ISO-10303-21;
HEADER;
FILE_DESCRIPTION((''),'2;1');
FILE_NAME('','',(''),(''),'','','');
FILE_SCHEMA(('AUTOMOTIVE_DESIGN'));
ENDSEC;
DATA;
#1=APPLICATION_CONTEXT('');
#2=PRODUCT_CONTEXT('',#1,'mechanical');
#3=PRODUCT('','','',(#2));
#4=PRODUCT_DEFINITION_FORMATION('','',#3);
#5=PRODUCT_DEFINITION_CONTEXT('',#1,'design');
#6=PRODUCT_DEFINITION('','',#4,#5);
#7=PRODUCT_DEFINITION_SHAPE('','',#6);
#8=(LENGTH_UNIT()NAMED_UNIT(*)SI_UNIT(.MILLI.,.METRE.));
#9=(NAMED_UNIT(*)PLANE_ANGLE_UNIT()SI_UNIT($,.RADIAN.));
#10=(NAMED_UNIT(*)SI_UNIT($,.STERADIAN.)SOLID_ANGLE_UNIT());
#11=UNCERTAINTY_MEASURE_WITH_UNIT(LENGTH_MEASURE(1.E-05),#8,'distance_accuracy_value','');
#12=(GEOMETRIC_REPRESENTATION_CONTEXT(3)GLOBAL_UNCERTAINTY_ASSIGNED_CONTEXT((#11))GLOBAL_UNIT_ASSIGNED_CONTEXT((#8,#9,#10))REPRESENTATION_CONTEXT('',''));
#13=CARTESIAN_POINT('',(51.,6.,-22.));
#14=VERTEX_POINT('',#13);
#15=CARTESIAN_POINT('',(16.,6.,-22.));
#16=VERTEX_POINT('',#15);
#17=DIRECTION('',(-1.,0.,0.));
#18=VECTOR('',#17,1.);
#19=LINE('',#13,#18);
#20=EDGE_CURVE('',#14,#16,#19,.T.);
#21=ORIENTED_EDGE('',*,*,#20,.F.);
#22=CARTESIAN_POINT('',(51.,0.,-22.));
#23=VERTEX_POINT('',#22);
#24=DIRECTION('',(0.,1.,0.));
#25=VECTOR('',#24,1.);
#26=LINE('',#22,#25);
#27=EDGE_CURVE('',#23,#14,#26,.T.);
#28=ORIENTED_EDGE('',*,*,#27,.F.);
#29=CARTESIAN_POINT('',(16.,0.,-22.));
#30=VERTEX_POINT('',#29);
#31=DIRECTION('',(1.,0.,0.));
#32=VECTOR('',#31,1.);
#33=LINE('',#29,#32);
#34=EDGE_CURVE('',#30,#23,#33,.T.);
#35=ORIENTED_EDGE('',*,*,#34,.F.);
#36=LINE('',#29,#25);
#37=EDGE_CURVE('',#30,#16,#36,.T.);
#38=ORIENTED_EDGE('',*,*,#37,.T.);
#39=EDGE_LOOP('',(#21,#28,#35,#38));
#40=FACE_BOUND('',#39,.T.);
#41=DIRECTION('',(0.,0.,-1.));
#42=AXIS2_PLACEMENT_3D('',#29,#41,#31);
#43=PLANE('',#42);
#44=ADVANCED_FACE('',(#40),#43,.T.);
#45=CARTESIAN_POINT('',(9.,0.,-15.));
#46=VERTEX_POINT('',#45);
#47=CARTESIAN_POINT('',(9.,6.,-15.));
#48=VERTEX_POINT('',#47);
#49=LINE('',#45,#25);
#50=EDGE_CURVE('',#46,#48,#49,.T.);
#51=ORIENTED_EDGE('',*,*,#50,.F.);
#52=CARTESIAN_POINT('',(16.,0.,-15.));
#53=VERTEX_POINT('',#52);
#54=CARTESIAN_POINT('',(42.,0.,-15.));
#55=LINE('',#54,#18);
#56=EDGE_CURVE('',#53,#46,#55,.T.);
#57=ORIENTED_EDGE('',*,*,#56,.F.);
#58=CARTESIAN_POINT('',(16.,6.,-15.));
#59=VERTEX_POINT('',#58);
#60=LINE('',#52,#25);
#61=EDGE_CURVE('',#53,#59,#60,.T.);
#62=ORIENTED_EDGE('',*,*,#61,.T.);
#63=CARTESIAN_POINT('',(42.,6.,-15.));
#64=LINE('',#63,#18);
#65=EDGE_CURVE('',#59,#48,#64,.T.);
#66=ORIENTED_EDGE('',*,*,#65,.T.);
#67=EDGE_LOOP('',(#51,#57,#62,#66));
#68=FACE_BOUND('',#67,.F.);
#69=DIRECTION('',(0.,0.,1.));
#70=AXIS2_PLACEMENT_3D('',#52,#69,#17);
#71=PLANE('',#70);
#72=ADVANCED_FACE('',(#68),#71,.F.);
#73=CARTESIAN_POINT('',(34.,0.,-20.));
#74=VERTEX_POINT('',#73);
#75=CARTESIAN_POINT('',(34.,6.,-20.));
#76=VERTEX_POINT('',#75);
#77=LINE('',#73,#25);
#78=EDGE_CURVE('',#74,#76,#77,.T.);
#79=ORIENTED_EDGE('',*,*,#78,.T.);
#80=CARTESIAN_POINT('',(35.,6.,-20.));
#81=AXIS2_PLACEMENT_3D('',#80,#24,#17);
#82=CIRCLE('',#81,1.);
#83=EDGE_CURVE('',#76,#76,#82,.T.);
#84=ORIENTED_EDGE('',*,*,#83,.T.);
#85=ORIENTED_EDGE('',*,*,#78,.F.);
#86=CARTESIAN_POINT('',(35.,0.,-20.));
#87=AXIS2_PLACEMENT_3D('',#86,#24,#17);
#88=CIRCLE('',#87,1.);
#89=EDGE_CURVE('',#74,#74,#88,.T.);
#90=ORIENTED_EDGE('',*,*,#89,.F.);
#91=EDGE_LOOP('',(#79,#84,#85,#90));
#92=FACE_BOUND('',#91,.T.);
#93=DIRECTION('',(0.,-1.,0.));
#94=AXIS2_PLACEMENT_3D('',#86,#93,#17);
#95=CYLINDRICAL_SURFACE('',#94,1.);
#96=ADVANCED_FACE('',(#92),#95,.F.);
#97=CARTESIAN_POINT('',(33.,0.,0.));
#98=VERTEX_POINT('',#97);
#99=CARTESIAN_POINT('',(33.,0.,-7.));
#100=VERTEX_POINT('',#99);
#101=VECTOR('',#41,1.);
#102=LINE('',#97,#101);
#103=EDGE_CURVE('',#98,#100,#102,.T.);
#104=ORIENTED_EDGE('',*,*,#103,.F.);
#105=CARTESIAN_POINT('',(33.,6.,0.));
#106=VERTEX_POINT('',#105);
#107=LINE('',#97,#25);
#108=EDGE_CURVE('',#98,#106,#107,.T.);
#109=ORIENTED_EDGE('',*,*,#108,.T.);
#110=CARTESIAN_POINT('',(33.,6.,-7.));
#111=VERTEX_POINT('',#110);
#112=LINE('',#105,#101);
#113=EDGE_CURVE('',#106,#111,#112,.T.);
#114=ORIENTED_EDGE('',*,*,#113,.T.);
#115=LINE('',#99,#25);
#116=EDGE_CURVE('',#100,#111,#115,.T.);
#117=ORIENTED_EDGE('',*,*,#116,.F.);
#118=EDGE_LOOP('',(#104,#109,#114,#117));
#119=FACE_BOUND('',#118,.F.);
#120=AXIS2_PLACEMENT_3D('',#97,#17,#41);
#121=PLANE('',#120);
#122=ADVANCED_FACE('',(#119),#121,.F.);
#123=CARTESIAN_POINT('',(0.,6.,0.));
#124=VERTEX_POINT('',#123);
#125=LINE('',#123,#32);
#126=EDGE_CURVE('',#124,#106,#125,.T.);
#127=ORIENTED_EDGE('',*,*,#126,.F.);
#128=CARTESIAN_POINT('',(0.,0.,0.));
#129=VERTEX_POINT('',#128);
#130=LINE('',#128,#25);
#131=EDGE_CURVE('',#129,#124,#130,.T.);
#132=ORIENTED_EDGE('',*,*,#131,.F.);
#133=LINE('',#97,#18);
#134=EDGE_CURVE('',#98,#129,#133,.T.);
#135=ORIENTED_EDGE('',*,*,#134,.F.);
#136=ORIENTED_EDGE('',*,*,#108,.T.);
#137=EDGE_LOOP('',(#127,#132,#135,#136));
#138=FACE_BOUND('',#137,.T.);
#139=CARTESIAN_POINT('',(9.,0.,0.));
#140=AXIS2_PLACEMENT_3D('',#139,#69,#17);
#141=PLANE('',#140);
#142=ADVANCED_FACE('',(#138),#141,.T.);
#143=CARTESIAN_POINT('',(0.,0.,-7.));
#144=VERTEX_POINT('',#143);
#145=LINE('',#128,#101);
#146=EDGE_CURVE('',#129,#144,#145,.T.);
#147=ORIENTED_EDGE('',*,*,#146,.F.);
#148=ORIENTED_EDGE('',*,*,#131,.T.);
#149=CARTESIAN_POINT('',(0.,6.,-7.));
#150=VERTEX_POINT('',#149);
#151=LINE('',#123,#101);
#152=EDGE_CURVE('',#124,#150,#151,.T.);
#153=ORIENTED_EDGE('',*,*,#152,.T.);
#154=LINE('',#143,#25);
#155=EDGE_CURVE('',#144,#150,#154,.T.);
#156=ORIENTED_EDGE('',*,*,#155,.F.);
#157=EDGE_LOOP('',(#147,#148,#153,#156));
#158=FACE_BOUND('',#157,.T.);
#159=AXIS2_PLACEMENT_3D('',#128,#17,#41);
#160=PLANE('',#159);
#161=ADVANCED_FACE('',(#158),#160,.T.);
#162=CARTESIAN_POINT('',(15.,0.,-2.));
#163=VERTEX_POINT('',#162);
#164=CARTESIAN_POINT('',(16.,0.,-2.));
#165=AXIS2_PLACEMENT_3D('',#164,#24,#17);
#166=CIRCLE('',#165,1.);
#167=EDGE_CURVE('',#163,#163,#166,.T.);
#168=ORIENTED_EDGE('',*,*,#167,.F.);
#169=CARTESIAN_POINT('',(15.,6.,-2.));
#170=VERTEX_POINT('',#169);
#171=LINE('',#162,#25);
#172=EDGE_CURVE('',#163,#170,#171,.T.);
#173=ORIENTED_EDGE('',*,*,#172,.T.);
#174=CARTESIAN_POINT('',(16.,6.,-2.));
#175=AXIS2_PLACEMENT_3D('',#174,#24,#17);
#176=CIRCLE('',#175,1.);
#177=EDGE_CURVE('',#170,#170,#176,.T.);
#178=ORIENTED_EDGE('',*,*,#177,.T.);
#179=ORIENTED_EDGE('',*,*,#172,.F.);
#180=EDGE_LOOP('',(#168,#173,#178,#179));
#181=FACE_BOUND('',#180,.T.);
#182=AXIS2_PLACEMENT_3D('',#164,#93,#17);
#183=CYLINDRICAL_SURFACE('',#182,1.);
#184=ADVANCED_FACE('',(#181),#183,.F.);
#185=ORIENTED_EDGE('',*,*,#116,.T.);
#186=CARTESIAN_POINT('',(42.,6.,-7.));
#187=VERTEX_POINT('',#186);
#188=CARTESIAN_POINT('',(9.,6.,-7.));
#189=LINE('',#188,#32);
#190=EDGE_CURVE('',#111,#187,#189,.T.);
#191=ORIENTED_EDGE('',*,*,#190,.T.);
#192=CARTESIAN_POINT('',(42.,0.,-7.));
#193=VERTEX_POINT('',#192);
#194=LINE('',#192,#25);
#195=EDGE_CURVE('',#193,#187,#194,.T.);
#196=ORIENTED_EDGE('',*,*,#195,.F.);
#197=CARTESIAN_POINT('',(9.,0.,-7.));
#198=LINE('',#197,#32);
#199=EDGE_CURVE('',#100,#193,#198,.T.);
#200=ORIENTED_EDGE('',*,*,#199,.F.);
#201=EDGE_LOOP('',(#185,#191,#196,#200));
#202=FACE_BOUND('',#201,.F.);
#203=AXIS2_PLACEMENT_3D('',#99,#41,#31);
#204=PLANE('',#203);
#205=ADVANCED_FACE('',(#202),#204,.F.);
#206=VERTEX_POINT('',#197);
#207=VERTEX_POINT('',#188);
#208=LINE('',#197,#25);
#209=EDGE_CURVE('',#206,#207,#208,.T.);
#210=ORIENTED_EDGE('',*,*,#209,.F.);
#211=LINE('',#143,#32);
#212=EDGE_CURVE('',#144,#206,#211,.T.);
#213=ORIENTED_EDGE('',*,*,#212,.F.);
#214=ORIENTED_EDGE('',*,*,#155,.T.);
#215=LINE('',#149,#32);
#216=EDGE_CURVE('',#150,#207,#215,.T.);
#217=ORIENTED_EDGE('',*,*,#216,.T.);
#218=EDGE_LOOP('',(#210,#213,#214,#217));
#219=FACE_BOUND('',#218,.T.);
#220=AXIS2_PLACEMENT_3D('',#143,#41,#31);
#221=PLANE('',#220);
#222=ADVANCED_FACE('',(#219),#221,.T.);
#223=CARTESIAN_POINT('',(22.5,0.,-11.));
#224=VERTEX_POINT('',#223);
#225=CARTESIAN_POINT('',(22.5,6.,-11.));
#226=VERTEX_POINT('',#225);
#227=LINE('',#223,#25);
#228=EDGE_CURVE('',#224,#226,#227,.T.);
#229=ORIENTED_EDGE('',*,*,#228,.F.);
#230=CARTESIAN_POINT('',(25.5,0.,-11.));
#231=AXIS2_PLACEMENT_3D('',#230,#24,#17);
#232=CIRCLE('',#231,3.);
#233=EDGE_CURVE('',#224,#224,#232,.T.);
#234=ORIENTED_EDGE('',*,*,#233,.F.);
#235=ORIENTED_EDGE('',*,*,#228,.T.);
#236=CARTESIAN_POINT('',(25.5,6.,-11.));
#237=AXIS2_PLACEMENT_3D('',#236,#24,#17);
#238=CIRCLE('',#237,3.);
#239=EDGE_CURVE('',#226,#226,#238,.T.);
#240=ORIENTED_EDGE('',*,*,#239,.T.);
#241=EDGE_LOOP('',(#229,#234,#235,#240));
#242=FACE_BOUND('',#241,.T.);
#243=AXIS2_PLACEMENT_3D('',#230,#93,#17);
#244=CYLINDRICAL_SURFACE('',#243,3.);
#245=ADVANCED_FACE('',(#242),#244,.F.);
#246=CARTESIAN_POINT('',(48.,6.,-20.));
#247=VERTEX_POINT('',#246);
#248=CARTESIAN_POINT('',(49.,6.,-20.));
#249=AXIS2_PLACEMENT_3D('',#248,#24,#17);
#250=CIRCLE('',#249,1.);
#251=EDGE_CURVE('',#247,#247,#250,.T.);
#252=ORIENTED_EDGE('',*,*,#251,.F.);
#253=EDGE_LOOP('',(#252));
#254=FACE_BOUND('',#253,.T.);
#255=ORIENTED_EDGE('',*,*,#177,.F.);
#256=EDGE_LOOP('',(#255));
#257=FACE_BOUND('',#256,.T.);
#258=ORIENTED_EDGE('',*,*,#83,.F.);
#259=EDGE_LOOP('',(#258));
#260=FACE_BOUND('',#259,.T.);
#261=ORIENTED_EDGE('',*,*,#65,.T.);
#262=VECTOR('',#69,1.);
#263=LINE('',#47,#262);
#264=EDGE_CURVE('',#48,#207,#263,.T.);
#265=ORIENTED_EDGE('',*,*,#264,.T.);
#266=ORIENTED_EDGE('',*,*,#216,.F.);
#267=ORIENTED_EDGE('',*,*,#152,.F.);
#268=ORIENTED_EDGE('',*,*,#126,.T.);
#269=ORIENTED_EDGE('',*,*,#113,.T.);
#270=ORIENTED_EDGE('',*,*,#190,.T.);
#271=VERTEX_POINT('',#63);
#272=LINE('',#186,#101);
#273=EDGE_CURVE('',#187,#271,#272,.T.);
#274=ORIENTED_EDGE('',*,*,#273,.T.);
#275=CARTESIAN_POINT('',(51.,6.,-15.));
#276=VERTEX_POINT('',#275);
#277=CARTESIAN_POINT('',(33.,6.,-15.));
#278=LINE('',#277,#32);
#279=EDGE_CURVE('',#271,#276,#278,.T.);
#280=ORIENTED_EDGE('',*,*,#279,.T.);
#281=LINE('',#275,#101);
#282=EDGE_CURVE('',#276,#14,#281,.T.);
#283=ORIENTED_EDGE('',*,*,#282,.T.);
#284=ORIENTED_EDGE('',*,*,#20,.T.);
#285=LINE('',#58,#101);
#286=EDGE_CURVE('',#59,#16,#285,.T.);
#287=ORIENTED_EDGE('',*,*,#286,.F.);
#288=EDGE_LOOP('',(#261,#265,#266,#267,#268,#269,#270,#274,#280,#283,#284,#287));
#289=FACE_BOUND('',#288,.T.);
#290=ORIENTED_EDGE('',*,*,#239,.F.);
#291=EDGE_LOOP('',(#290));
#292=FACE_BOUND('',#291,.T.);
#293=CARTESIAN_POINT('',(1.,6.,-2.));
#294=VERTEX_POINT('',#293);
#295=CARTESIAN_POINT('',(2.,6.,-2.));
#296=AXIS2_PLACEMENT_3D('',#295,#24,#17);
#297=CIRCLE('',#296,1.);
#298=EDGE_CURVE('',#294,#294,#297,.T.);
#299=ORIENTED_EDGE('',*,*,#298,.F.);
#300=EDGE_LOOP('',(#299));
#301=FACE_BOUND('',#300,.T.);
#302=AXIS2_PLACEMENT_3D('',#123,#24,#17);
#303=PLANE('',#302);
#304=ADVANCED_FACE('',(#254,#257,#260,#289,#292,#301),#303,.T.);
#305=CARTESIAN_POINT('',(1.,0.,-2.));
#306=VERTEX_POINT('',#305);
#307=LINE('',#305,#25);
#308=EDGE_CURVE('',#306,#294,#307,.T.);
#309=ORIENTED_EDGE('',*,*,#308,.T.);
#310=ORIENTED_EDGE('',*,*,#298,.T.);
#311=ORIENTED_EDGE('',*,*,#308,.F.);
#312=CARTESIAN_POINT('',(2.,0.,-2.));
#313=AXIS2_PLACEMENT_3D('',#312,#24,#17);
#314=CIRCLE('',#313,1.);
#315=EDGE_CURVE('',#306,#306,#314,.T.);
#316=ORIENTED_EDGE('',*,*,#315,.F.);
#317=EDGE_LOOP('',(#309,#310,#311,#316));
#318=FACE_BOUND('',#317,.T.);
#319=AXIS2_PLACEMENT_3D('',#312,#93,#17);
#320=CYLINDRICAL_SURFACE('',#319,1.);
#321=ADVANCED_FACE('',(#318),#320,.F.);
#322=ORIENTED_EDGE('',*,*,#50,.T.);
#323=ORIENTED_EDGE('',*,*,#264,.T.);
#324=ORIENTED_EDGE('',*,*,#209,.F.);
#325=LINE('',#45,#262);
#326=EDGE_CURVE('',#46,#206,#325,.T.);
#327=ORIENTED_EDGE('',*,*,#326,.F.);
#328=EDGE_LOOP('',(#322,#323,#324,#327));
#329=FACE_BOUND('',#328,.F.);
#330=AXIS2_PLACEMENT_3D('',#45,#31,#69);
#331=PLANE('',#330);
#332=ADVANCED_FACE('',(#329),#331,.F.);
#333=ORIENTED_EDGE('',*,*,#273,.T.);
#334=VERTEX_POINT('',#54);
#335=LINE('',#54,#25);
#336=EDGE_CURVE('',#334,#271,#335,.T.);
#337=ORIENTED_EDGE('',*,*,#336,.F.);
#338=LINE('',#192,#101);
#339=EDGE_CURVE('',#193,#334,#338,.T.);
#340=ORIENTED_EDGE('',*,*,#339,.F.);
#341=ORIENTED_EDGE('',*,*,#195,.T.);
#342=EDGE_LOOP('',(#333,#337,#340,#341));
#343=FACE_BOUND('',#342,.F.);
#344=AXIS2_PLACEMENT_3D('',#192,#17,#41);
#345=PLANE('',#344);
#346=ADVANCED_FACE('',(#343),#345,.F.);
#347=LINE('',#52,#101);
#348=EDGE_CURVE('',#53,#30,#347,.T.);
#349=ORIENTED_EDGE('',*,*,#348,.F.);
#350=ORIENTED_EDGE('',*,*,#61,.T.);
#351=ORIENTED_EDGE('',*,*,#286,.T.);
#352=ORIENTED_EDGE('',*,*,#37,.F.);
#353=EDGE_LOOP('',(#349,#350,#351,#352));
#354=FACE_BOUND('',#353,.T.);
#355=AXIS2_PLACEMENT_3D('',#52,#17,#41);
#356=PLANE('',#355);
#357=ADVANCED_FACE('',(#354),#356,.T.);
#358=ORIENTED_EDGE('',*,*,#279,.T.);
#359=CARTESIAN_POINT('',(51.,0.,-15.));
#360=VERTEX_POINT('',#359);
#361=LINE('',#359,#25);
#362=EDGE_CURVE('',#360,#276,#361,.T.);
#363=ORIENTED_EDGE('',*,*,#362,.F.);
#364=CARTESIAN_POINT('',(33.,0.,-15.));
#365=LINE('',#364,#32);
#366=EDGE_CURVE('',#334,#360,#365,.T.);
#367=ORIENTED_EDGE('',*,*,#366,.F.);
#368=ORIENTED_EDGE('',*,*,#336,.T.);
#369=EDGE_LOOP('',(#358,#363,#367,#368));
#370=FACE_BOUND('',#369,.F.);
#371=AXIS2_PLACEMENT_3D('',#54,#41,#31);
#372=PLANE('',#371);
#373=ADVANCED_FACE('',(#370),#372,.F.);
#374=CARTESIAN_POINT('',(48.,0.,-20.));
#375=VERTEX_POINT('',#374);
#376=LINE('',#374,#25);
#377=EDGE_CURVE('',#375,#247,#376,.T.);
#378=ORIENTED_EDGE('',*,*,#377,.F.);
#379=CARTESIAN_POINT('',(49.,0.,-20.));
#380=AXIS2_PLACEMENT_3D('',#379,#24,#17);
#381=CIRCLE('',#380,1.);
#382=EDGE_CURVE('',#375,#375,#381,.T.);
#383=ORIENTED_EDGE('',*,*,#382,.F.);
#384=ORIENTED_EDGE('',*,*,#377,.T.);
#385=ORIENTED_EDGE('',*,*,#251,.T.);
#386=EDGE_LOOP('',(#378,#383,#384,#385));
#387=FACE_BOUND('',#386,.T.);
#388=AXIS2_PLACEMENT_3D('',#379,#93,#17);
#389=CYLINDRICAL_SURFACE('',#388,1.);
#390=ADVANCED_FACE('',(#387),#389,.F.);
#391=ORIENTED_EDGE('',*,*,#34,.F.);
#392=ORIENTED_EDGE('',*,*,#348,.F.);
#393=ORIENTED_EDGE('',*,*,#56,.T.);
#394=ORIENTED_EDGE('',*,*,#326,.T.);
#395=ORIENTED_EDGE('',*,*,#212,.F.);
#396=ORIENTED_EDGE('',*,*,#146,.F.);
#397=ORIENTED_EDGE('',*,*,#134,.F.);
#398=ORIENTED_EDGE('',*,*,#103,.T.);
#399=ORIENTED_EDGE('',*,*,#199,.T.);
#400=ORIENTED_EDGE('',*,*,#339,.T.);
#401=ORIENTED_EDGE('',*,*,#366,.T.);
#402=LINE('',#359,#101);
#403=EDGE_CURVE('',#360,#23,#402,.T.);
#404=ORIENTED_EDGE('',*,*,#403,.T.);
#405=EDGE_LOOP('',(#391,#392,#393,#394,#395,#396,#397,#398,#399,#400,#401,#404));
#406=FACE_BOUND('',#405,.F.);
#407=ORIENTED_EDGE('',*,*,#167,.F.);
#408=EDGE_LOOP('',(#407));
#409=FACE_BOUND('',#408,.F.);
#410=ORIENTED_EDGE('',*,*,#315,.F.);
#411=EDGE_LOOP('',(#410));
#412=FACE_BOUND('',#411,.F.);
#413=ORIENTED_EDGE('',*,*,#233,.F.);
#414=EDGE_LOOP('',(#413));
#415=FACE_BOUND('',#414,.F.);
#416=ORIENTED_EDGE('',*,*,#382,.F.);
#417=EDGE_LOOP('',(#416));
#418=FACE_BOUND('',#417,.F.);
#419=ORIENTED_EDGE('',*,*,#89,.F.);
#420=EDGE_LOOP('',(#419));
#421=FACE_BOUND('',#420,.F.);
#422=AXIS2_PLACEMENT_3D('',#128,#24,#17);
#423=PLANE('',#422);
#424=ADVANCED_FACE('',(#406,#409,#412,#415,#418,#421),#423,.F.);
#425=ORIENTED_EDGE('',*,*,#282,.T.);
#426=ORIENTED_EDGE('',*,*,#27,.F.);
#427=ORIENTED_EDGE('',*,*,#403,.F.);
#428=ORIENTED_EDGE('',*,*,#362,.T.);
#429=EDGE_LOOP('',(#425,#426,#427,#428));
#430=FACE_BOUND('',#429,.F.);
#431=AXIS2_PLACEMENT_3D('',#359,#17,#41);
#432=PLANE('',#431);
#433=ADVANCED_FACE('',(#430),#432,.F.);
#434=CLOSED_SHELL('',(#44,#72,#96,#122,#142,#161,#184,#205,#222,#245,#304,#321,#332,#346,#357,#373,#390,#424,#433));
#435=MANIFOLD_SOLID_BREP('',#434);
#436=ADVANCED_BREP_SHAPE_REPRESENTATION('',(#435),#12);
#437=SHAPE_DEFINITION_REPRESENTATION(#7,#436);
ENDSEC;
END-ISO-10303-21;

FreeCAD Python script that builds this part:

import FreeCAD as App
import Part
import Sketcher
from FreeCAD import Vector
Q = App.Units.Quantity

doc = App.newDocument("Part")
params = doc.addObject("Spreadsheet::Sheet", "Params")
for row, (alias, value) in enumerate([
    ("sketch1_diameter", "2 mm"),
    ("sketch1_diameter2", "6 mm"),
    ("sketch1_width", "7 mm"),
    ("pad1_length", "6 mm"),
], start=1):
    params.set(f"A{row}", alias)
    params.set(f"B{row}", "=" + value)
    params.setAlias(f"B{row}", alias)

body = doc.addObject("PartDesign::Body", "Body")

sketch1 = body.newObject("Sketcher::SketchObject", "Sketch")
sketch1.AttachmentSupport = (doc.getObject("XZ_Plane"), [""])
sketch1.MapMode = "FlatFace"
sketch1.addGeometry([
    Part.LineSegment(Vector(9, -7, 0), Vector(0, -7, 0)),
    Part.LineSegment(Vector(0, -7, 0), Vector(0, 0, 0)),
    Part.LineSegment(Vector(0, 0, 0), Vector(33, 0, 0)),
    Part.LineSegment(Vector(33, 0, 0), Vector(33, -7, 0)),
    Part.LineSegment(Vector(33, -7, 0), Vector(42, -7, 0)),
    Part.LineSegment(Vector(42, -7, 0), Vector(42, -15, 0)),
    Part.LineSegment(Vector(42, -15, 0), Vector(51, -15, 0)),
    Part.LineSegment(Vector(51, -15, 0), Vector(51, -22, 0)),
    Part.LineSegment(Vector(51, -22, 0), Vector(16, -22, 0)),
    Part.LineSegment(Vector(16, -22, 0), Vector(16, -15, 0)),
    Part.LineSegment(Vector(16, -15, 0), Vector(9, -15, 0)),
    Part.LineSegment(Vector(9, -15, 0), Vector(9, -7, 0)),
    Part.Circle(Vector(16, -2, 0), Vector(0, 0, 1), 1),
    Part.Circle(Vector(2, -2, 0), Vector(0, 0, 1), 1),
    Part.Circle(Vector(25.5, -11, 0), Vector(0, 0, 1), 3),
    Part.Circle(Vector(49, -20, 0), Vector(0, 0, 1), 1),
    Part.Circle(Vector(35, -20, 0), Vector(0, 0, 1), 1),
], False)
sketch1.addConstraint([
    Sketcher.Constraint("Coincident", 0, 2, 1, 1),
    Sketcher.Constraint("Coincident", 1, 2, 2, 1),
    Sketcher.Constraint("Coincident", 2, 2, 3, 1),
    Sketcher.Constraint("Coincident", 3, 2, 4, 1),
    Sketcher.Constraint("Coincident", 4, 2, 5, 1),
    Sketcher.Constraint("Coincident", 5, 2, 6, 1),
    Sketcher.Constraint("Coincident", 6, 2, 7, 1),
    Sketcher.Constraint("Coincident", 7, 2, 8, 1),
    Sketcher.Constraint("Coincident", 8, 2, 9, 1),
    Sketcher.Constraint("Coincident", 9, 2, 10, 1),
    Sketcher.Constraint("Coincident", 10, 2, 11, 1),
    Sketcher.Constraint("Coincident", 11, 2, 0, 1),
    Sketcher.Constraint("Horizontal", 0),
    Sketcher.Constraint("Vertical", 1),
    Sketcher.Constraint("Horizontal", 2),
    Sketcher.Constraint("Vertical", 3),
    Sketcher.Constraint("Horizontal", 4),
    Sketcher.Constraint("Vertical", 5),
    Sketcher.Constraint("Horizontal", 6),
    Sketcher.Constraint("Vertical", 7),
    Sketcher.Constraint("Horizontal", 8),
    Sketcher.Constraint("Vertical", 9),
    Sketcher.Constraint("Horizontal", 10),
    Sketcher.Constraint("Vertical", 11),
    Sketcher.Constraint("Coincident", 1, 2, -1, 1),
    Sketcher.Constraint("Equal", 12, 13),
    Sketcher.Constraint("Equal", 13, 15),
    Sketcher.Constraint("Equal", 15, 16),
    Sketcher.Constraint("Horizontal", 12, 3, 13, 3),
    Sketcher.Constraint("Horizontal", 15, 3, 16, 3),
    Sketcher.Constraint("Horizontal", 0, 2, 3, 2),
    Sketcher.Constraint("Horizontal", 6, 2, 9, 2),
    Sketcher.Constraint("Vertical", 12, 3, 8, 2),
    Sketcher.Constraint("Equal", 0, 4),
    Sketcher.Constraint("Equal", 4, 6),
    Sketcher.Constraint("Equal", 10, 1),
    Sketcher.Constraint("Equal", 3, 7),
    Sketcher.Constraint("Diameter", 12, Q("2 mm")),
    Sketcher.Constraint("Diameter", 14, Q("6 mm")),
    Sketcher.Constraint("DistanceX", 10, 2, 10, 1, Q("7 mm")),
    Sketcher.Constraint("DistanceX", -1, 1, 12, 3, Q("16 mm")),
    Sketcher.Constraint("DistanceY", 12, 3, -1, 1, Q("2 mm")),
    Sketcher.Constraint("DistanceX", -1, 1, 13, 3, Q("2 mm")),
    Sketcher.Constraint("DistanceY", 7, 2, -1, 1, Q("22 mm")),
    Sketcher.Constraint("DistanceY", 15, 3, 12, 3, Q("18 mm")),
    Sketcher.Constraint("DistanceX", 12, 3, 16, 3, Q("19 mm")),
    Sketcher.Constraint("DistanceX", 2, 2, 16, 3, Q("2 mm")),
    Sketcher.Constraint("DistanceX", 2, 2, 15, 3, Q("16 mm")),
    Sketcher.Constraint("DistanceY", 14, 3, -1, 1, Q("11 mm")),
    Sketcher.Constraint("DistanceX", -1, 1, 14, 3, Q("25.5 mm")),
])
sketch1.setExpression("Constraints[37]", "Params.sketch1_diameter")
sketch1.setExpression("Constraints[38]", "Params.sketch1_diameter2")
sketch1.setExpression("Constraints[39]", "Params.sketch1_width")
pad1 = body.newObject("PartDesign::Pad", "Pad")
pad1.Profile = sketch1
pad1.setExpression("Length", "Params.pad1_length")
pad1.Reversed = True

doc.recompute()
